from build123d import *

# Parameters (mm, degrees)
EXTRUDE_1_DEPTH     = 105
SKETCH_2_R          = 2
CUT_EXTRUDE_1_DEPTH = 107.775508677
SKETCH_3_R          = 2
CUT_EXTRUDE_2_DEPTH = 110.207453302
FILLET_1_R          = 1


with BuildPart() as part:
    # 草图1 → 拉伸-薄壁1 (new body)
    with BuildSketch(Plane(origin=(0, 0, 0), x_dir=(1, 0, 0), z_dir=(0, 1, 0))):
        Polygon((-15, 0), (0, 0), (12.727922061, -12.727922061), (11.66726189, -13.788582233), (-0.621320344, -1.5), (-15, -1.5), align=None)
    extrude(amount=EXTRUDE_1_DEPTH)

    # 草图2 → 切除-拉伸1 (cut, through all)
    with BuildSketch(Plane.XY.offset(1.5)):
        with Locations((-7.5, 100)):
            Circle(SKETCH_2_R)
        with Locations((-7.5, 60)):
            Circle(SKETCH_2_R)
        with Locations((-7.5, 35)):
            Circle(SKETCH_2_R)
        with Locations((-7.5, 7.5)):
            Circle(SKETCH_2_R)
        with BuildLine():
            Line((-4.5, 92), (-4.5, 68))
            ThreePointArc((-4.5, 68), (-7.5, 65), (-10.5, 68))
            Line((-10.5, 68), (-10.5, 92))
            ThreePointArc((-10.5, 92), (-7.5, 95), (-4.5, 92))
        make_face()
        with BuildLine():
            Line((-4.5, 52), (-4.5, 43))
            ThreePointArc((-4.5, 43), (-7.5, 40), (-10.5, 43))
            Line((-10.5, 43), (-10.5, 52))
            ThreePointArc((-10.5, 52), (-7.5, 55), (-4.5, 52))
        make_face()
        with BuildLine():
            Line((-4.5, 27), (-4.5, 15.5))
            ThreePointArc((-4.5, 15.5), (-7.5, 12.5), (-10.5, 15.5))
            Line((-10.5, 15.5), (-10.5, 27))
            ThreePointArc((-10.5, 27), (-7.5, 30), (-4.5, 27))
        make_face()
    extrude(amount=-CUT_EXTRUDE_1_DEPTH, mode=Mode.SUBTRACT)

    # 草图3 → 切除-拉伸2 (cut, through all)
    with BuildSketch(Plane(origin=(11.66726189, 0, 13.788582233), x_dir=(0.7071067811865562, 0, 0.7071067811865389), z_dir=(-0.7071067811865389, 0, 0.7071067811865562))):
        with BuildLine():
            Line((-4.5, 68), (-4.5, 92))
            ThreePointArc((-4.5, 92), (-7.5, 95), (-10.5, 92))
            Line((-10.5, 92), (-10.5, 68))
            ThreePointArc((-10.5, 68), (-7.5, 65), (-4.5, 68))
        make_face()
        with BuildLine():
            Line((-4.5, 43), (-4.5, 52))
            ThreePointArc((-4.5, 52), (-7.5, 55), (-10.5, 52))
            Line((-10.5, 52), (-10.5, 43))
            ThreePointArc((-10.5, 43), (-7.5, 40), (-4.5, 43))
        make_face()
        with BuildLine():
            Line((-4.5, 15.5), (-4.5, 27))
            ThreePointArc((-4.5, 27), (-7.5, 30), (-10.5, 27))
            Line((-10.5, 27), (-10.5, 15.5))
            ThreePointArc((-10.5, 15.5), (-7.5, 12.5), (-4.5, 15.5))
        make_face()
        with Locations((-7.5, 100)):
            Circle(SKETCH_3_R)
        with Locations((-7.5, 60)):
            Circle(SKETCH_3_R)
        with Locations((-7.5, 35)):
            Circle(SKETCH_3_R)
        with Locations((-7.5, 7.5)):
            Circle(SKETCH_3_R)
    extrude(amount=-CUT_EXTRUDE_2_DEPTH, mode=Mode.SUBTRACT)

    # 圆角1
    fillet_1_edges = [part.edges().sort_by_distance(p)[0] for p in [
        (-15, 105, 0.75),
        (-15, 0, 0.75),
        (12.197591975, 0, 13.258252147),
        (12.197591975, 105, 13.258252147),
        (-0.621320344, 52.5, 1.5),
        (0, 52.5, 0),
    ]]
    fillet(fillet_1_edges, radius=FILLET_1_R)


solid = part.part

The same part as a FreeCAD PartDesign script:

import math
import FreeCAD as App
import Part
import Sketcher
from FreeCAD import Vector
Q = App.Units.Quantity


def edges_at(feature, points):
    """Names of the edges that pass closest to the given points."""
    edges = feature.Shape.Edges
    near = lambda p: min(range(len(edges)), key=lambda i: edges[i].distToShape(Part.Vertex(*p))[0])
    return sorted({f"Edge{near(p) + 1}" for p in points})

doc = App.newDocument("Part")
params = doc.addObject("Spreadsheet::Sheet", "Params")
for row, (alias, value) in enumerate([
    ("sketch1_width", "15 mm"),
    ("sketch1_length", "18 mm"),
    ("sketch1_height", "1.5 mm"),
    ("sketch1_length2", "1.5 mm"),
    ("pad1_length", "105 mm"),
    ("sketch2_diameter", "4 mm"),
    ("sketch2_radius", "3 mm"),
    ("sketch2_height", "24 mm"),
    ("sketch2_height2", "9 mm"),
    ("sketch2_height3", "11.5 mm"),
    ("sketch3_diameter", "4 mm"),
    ("sketch3_radius", "3 mm"),
    ("sketch3_height", "24 mm"),
    ("sketch3_height2", "9 mm"),
    ("sketch3_height3", "11.5 mm"),
    ("fillet_radius", "1 mm"),
], start=1):
    params.set(f"A{row}", alias)
    params.set(f"B{row}", "=" + value)
    params.setAlias(f"B{row}", alias)

body = doc.addObject("PartDesign::Body", "Body")

# Sketch on XZ plane
sketch1 = body.newObject("Sketcher::SketchObject", "Sketch")
sketch1.AttachmentSupport = (doc.getObject("XZ_Plane"), [""])
sketch1.MapMode = "FlatFace"
sketch1.addGeometry(Part.LineSegment(Vector(0, 0, 0), Vector(-15, 0, 0)), False)
sketch1.addGeometry(Part.LineSegment(Vector(-15, 0, 0), Vector(-15, 1.5, 0)), False)
sketch1.addGeometry(Part.LineSegment(Vector(-15, 1.5, 0), Vector(-0.6, 1.5, 0)), False)
sketch1.addGeometry(Part.LineSegment(Vector(-0.6, 1.5, 0), Vector(11.7, 13.8, 0)), False)
sketch1.addGeometry(Part.LineSegment(Vector(11.7, 13.8, 0), Vector(12.7, 12.7, 0)), False)
sketch1.addGeometry(Part.LineSegment(Vector(12.7, 12.7, 0), Vector(0, 0, 0)), False)
sketch1.addConstraint(Sketcher.Constraint("Coincident", 0, 2, 1, 1))
sketch1.addConstraint(Sketcher.Constraint("Coincident", 1, 2, 2, 1))
sketch1.addConstraint(Sketcher.Constraint("Coincident", 2, 2, 3, 1))
sketch1.addConstraint(Sketcher.Constraint("Coincident", 3, 2, 4, 1))
sketch1.addConstraint(Sketcher.Constraint("Coincident", 4, 2, 5, 1))
sketch1.addConstraint(Sketcher.Constraint("Coincident", 5, 2, 0, 1))
sketch1.addConstraint(Sketcher.Constraint("Horizontal", 0))
sketch1.addConstraint(Sketcher.Constraint("Vertical", 1))
sketch1.addConstraint(Sketcher.Constraint("Horizontal", 2))
sketch1.addConstraint(Sketcher.Constraint("Coincident", 5, 2, -1, 1))
sketch1.addConstraint(Sketcher.Constraint("Perpendicular", 3, 4))
sketch1.addConstraint(Sketcher.Constraint("Perpendicular", 4, 5))
sketch1.addConstraint(Sketcher.Constraint("DistanceX", 0, 2, 0, 1, 15.0))
sketch1.addConstraint(Sketcher.Constraint("Angle", 3, Q("45 deg")))
sketch1.addConstraint(Sketcher.Constraint("Distance", 5, 18.0))
sketch1.addConstraint(Sketcher.Constraint("DistanceY", 1, 1, 1, 2, 1.5))
sketch1.addConstraint(Sketcher.Constraint("Distance", 4, 1.5))
sketch1.setExpression("Constraints[12]", "Params.sketch1_width")
sketch1.setExpression("Constraints[14]", "Params.sketch1_length")
sketch1.setExpression("Constraints[15]", "Params.sketch1_height")
sketch1.setExpression("Constraints[16]", "Params.sketch1_length2")
pad1 = body.newObject("PartDesign::Pad", "Pad")
pad1.Profile = sketch1
pad1.setExpression("Length", "Params.pad1_length")
pad1.Reversed = True

# Sketch on XY plane
sketch2 = body.newObject("Sketcher::SketchObject", "Sketch001")
sketch2.AttachmentSupport = (doc.getObject("XY_Plane"), [""])
sketch2.MapMode = "FlatFace"
sketch2.AttachmentOffset = App.Placement(Vector(0, 0, 1.5), App.Rotation())
sketch2.addGeometry(Part.Circle(Vector(-7.5, 100, 0), Vector(0, 0, 1), 2), False)
sketch2.addGeometry(Part.Circle(Vector(-7.5, 60, 0), Vector(0, 0, 1), 2), False)
sketch2.addGeometry(Part.Circle(Vector(-7.5, 35, 0), Vector(0, 0, 1), 2), False)
sketch2.addGeometry(Part.Circle(Vector(-7.5, 7.5, 0), Vector(0, 0, 1), 2), False)
sketch2.addGeometry(Part.LineSegment(Vector(-4.5, 68, 0), Vector(-4.5, 92, 0)), False)
sketch2.addGeometry(Part.ArcOfCircle(Part.Circle(Vector(-7.5, 92, 0), Vector(0, 0, 1), 3), math.radians(0), math.radians(180)), False)
sketch2.addGeometry(Part.LineSegment(Vector(-10.5, 92, 0), Vector(-10.5, 68, 0)), False)
sketch2.addGeometry(Part.ArcOfCircle(Part.Circle(Vector(-7.5, 68, 0), Vector(0, 0, 1), 3), math.radians(180), math.radians(360)), False)
sketch2.addGeometry(Part.LineSegment(Vector(-4.5, 43, 0), Vector(-4.5, 52, 0)), False)
sketch2.addGeometry(Part.ArcOfCircle(Part.Circle(Vector(-7.5, 52, 0), Vector(0, 0, 1), 3), math.radians(0), math.radians(180)), False)
sketch2.addGeometry(Part.LineSegment(Vector(-10.5, 52, 0), Vector(-10.5, 43, 0)), False)
sketch2.addGeometry(Part.ArcOfCircle(Part.Circle(Vector(-7.5, 43, 0), Vector(0, 0, 1), 3), math.radians(180), math.radians(360)), False)
sketch2.addGeometry(Part.LineSegment(Vector(-4.5, 15.5, 0), Vector(-4.5, 27, 0)), False)
sketch2.addGeometry(Part.ArcOfCircle(Part.Circle(Vector(-7.5, 27, 0), Vector(0, 0, 1), 3), math.radians(0), math.radians(180)), False)
sketch2.addGeometry(Part.LineSegment(Vector(-10.5, 27, 0), Vector(-10.5, 15.5, 0)), False)
sketch2.addGeometry(Part.ArcOfCircle(Part.Circle(Vector(-7.5, 15.5, 0), Vector(0, 0, 1), 3), math.radians(180), math.radians(360)), False)
sketch2.addConstraint(Sketcher.Constraint("Tangent", 4, 2, 5, 1))
sketch2.addConstraint(Sketcher.Constraint("Tangent", 5, 2, 6, 1))
sketch2.addConstraint(Sketcher.Constraint("Tangent", 6, 2, 7, 1))
sketch2.addConstraint(Sketcher.Constraint("Tangent", 7, 2, 4, 1))
sketch2.addConstraint(Sketcher.Constraint("Tangent", 8, 2, 9, 1))
sketch2.addConstraint(Sketcher.Constraint("Tangent", 9, 2, 10, 1))
sketch2.addConstraint(Sketcher.Constraint("Tangent", 10, 2, 11, 1))
sketch2.addConstraint(Sketcher.Constraint("Tangent", 11, 2, 8, 1))
sketch2.addConstraint(Sketcher.Constraint("Tangent", 12, 2, 13, 1))
sketch2.addConstraint(Sketcher.Constraint("Tangent", 13, 2, 14, 1))
sketch2.addConstraint(Sketcher.Constraint("Tangent", 14, 2, 15, 1))
sketch2.addConstraint(Sketcher.Constraint("Tangent", 15, 2, 12, 1))
sketch2.addConstraint(Sketcher.Constraint("Vertical", 4))
sketch2.addConstraint(Sketcher.Constraint("Vertical", 6))
sketch2.addConstraint(Sketcher.Constraint("Vertical", 8))
sketch2.addConstraint(Sketcher.Constraint("Vertical", 10))
sketch2.addConstraint(Sketcher.Constraint("Vertical", 12))
sketch2.addConstraint(Sketcher.Constraint("Vertical", 14))
sketch2.addConstraint(Sketcher.Constraint("Equal", 0, 1))
sketch2.addConstraint(Sketcher.Constraint("Equal", 1, 2))
sketch2.addConstraint(Sketcher.Constraint("Equal", 2, 3))
sketch2.addConstraint(Sketcher.Constraint("Equal", 7, 9))
sketch2.addConstraint(Sketcher.Constraint("Equal", 11, 13))
sketch2.addConstraint(Sketcher.Constraint("Vertical", 0, 3, 1, 3))
sketch2.addConstraint(Sketcher.Constraint("Vertical", 1, 3, 2, 3))
sketch2.addConstraint(Sketcher.Constraint("Vertical", 2, 3, 3, 3))
sketch2.addConstraint(Sketcher.Constraint("Vertical", 3, 3, 5, 3))
sketch2.addConstraint(Sketcher.Constraint("Vertical", 7, 3, 9, 3))
sketch2.addConstraint(Sketcher.Constraint("Vertical", 11, 3, 13, 3))
sketch2.addConstraint(Sketcher.Constraint("Diameter", 0, 4.0))
sketch2.addConstraint(Sketcher.Constraint("Radius", 5, 3.0))
sketch2.addConstraint(Sketcher.Constraint("DistanceY", 4, 1, 4, 2, 24.0))
sketch2.addConstraint(Sketcher.Constraint("DistanceY", 8, 1, 8, 2, 9.0))
sketch2.addConstraint(Sketcher.Constraint("DistanceY", 12, 1, 12, 2, 11.5))
sketch2.addConstraint(Sketcher.Constraint("DistanceY", -1, 1, 0, 3, 100.0))
sketch2.addConstraint(Sketcher.Constraint("DistanceY", -1, 1, 1, 3, 60.0))
sketch2.addConstraint(Sketcher.Constraint("DistanceY", -1, 1, 2, 3, 35.0))
sketch2.addConstraint(Sketcher.Constraint("DistanceY", -1, 1, 5, 3, 92.0))
sketch2.addConstraint(Sketcher.Constraint("DistanceY", -1, 1, 9, 3, 52.0))
sketch2.addConstraint(Sketcher.Constraint("DistanceY", -1, 1, 13, 3, 27.0))
sketch2.addConstraint(Sketcher.Constraint("DistanceY", 3, 3, 15, 3, 8.0))
sketch2.addConstraint(Sketcher.Constraint("DistanceX", 0, 3, -1, 1, 7.5))
sketch2.setExpression("Constraints[29]", "Params.sketch2_diameter")
sketch2.setExpression("Constraints[30]", "Params.sketch2_radius")
sketch2.setExpression("Constraints[31]", "Params.sketch2_height")
sketch2.setExpression("Constraints[32]", "Params.sketch2_height2")
sketch2.setExpression("Constraints[33]", "Params.sketch2_height3")
pocket1 = body.newObject("PartDesign::Pocket", "Pocket")
pocket1.Profile = sketch2
pocket1.Type = "ThroughAll"

# Sketch on an angled plane
sketch3 = body.newObject("Sketcher::SketchObject", "Sketch002")
sketch3.Placement = App.Placement(Vector(11.667262, 0, 13.788582), App.Rotation(Vector(0.707106781, 0, 0.707106781), Vector(0, 0.999999999, 0), Vector(-0.707106781, 0, 0.707106781), "ZXY"))
sketch3.addGeometry(Part.LineSegment(Vector(-4.5, 68, 0), Vector(-4.5, 92, 0)), False)
sketch3.addGeometry(Part.ArcOfCircle(Part.Circle(Vector(-7.5, 92, 0), Vector(0, 0, 1), 3), math.radians(0), math.radians(180)), False)
sketch3.addGeometry(Part.LineSegment(Vector(-10.5, 92, 0), Vector(-10.5, 68, 0)), False)
sketch3.addGeometry(Part.ArcOfCircle(Part.Circle(Vector(-7.5, 68, 0), Vector(0, 0, 1), 3), math.radians(180), math.radians(360)), False)
sketch3.addGeometry(Part.LineSegment(Vector(-4.5, 43, 0), Vector(-4.5, 52, 0)), False)
sketch3.addGeometry(Part.ArcOfCircle(Part.Circle(Vector(-7.5, 52, 0), Vector(0, 0, 1), 3), math.radians(0), math.radians(180)), False)
sketch3.addGeometry(Part.LineSegment(Vector(-10.5, 52, 0), Vector(-10.5, 43, 0)), False)
sketch3.addGeometry(Part.ArcOfCircle(Part.Circle(Vector(-7.5, 43, 0), Vector(0, 0, 1), 3), math.radians(180), math.radians(360)), False)
sketch3.addGeometry(Part.LineSegment(Vector(-4.5, 15.5, 0), Vector(-4.5, 27, 0)), False)
sketch3.addGeometry(Part.ArcOfCircle(Part.Circle(Vector(-7.5, 27, 0), Vector(0, 0, 1), 3), math.radians(0), math.radians(180)), False)
sketch3.addGeometry(Part.LineSegment(Vector(-10.5, 27, 0), Vector(-10.5, 15.5, 0)), False)
sketch3.addGeometry(Part.ArcOfCircle(Part.Circle(Vector(-7.5, 15.5, 0), Vector(0, 0, 1), 3), math.radians(180), math.radians(360)), False)
sketch3.addGeometry(Part.Circle(Vector(-7.5, 100, 0), Vector(0, 0, 1), 2), False)
sketch3.addGeometry(Part.Circle(Vector(-7.5, 60, 0), Vector(0, 0, 1), 2), False)
sketch3.addGeometry(Part.Circle(Vector(-7.5, 35, 0), Vector(0, 0, 1), 2), False)
sketch3.addGeometry(Part.Circle(Vector(-7.5, 7.5, 0), Vector(0, 0, 1), 2), False)
sketch3.addConstraint(Sketcher.Constraint("Tangent", 0, 2, 1, 1))
sketch3.addConstraint(Sketcher.Constraint("Tangent", 1, 2, 2, 1))
sketch3.addConstraint(Sketcher.Constraint("Tangent", 2, 2, 3, 1))
sketch3.addConstraint(Sketcher.Constraint("Tangent", 3, 2, 0, 1))
sketch3.addConstraint(Sketcher.Constraint("Tangent", 4, 2, 5, 1))
sketch3.addConstraint(Sketcher.Constraint("Tangent", 5, 2, 6, 1))
sketch3.addConstraint(Sketcher.Constraint("Tangent", 6, 2, 7, 1))
sketch3.addConstraint(Sketcher.Constraint("Tangent", 7, 2, 4, 1))
sketch3.addConstraint(Sketcher.Constraint("Tangent", 8, 2, 9, 1))
sketch3.addConstraint(Sketcher.Constraint("Tangent", 9, 2, 10, 1))
sketch3.addConstraint(Sketcher.Constraint("Tangent", 10, 2, 11, 1))
sketch3.addConstraint(Sketcher.Constraint("Tangent", 11, 2, 8, 1))
sketch3.addConstraint(Sketcher.Constraint("Vertical", 0))
sketch3.addConstraint(Sketcher.Constraint("Vertical", 2))
sketch3.addConstraint(Sketcher.Constraint("Vertical", 4))
sketch3.addConstraint(Sketcher.Constraint("Vertical", 6))
sketch3.addConstraint(Sketcher.Constraint("Vertical", 8))
sketch3.addConstraint(Sketcher.Constraint("Vertical", 10))
sketch3.addConstraint(Sketcher.Constraint("Equal", 3, 5))
sketch3.addConstraint(Sketcher.Constraint("Equal", 7, 9))
sketch3.addConstraint(Sketcher.Constraint("Equal", 12, 13))
sketch3.addConstraint(Sketcher.Constraint("Equal", 13, 14))
sketch3.addConstraint(Sketcher.Constraint("Equal", 14, 15))
sketch3.addConstraint(Sketcher.Constraint("Vertical", 3, 3, 5, 3))
sketch3.addConstraint(Sketcher.Constraint("Vertical", 7, 3, 9, 3))
sketch3.addConstraint(Sketcher.Constraint("Vertical", 11, 3, 12, 3))
sketch3.addConstraint(Sketcher.Constraint("Vertical", 12, 3, 13, 3))
sketch3.addConstraint(Sketcher.Constraint("Vertical", 13, 3, 14, 3))
sketch3.addConstraint(Sketcher.Constraint("Vertical", 14, 3, 15, 3))
sketch3.addConstraint(Sketcher.Constraint("Diameter", 12, 4.0))
sketch3.addConstraint(Sketcher.Constraint("Radius", 1, 3.0))
sketch3.addConstraint(Sketcher.Constraint("DistanceY", 0, 1, 0, 2, 24.0))
sketch3.addConstraint(Sketcher.Constraint("DistanceY", 4, 1, 4, 2, 9.0))
sketch3.addConstraint(Sketcher.Constraint("DistanceY", 8, 1, 8, 2, 11.5))
sketch3.addConstraint(Sketcher.Constraint("DistanceY", -1, 1, 1, 3, 92.0))
sketch3.addConstraint(Sketcher.Constraint("DistanceY", -1, 1, 5, 3, 52.0))
sketch3.addConstraint(Sketcher.Constraint("DistanceY", -1, 1, 9, 3, 27.0))
sketch3.addConstraint(Sketcher.Constraint("DistanceY", -1, 1, 12, 3, 100.0))
sketch3.addConstraint(Sketcher.Constraint("DistanceY", -1, 1, 13, 3, 60.0))
sketch3.addConstraint(Sketcher.Constraint("DistanceY", -1, 1, 14, 3, 35.0))
sketch3.addConstraint(Sketcher.Constraint("DistanceY", 15, 3, 11, 3, 8.0))
sketch3.addConstraint(Sketcher.Constraint("DistanceX", 1, 3, -1, 1, 7.5))
sketch3.setExpression("Constraints[29]", "Params.sketch3_diameter")
sketch3.setExpression("Constraints[30]", "Params.sketch3_radius")
sketch3.setExpression("Constraints[31]", "Params.sketch3_height")
sketch3.setExpression("Constraints[32]", "Params.sketch3_height2")
sketch3.setExpression("Constraints[33]", "Params.sketch3_height3")
pocket2 = body.newObject("PartDesign::Pocket", "Pocket001")
pocket2.Profile = sketch3
pocket2.Type = "ThroughAll"
doc.recompute()

fillet = body.newObject("PartDesign::Fillet", "Fillet")
fillet.Base = (pocket2, edges_at(pocket2, [
    (-15, 105, 0.75),
    (-15, 0, 0.75),
    (12.198, 0, 13.258),
    (12.198, 105, 13.258),
    (-0.621, 52.5, 1.5),
    (0, 52.5, 0),
]))
fillet.setExpression("Radius", "Params.fillet_radius")

doc.recompute()
